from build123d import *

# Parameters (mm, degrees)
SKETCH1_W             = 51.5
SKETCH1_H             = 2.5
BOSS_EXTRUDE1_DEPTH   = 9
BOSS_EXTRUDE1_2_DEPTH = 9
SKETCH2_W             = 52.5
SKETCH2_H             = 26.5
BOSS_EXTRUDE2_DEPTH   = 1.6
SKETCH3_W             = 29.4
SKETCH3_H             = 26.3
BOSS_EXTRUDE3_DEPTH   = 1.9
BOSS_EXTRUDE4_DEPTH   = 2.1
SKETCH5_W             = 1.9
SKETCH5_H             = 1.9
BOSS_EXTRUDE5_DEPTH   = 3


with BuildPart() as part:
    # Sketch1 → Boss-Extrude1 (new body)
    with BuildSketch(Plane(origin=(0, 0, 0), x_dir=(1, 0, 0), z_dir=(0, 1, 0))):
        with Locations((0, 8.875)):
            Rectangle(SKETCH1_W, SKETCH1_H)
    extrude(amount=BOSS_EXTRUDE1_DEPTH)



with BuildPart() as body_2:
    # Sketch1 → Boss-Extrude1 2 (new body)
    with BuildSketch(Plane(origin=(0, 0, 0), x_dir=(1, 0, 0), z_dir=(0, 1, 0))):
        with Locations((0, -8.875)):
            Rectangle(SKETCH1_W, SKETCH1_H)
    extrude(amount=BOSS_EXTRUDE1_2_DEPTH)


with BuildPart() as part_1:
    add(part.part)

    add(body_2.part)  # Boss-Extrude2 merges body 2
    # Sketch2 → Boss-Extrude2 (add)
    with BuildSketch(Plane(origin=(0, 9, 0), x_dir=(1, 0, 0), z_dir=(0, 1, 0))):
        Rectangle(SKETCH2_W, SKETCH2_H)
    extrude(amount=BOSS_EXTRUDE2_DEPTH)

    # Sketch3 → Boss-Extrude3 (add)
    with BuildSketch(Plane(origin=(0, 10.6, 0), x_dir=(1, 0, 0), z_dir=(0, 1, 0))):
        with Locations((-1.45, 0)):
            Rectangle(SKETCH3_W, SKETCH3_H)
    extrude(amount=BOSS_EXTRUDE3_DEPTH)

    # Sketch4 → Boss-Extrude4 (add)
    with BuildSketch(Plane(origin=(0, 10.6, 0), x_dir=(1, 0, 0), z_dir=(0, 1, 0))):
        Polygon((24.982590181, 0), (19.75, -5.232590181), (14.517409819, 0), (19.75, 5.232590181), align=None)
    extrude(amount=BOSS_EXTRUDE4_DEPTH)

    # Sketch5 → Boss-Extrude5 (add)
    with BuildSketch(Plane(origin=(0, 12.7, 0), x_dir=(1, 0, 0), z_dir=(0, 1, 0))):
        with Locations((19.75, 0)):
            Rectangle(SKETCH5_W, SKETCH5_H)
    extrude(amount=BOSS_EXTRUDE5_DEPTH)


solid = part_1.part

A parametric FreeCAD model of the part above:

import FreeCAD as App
import Part
import Sketcher

doc = App.newDocument("Part")
body = doc.addObject("PartDesign::Body", "Body")

# Sketch on XZ plane
sketch1 = body.newObject("Sketcher::SketchObject", "Sketch")
sketch1.AttachmentSupport = (doc.getObject("XZ_Plane"), [""])
sketch1.MapMode = "FlatFace"
sketch1.addGeometry(Part.LineSegment(App.Vector(-25.8, -10.1, 0), App.Vector(-25.8, -7.6, 0)), False)
sketch1.addGeometry(Part.LineSegment(App.Vector(-25.8, -7.6, 0), App.Vector(25.8, -7.6, 0)), False)
sketch1.addGeometry(Part.LineSegment(App.Vector(25.8, -7.6, 0), App.Vector(25.8, -10.1, 0)), False)
sketch1.addGeometry(Part.LineSegment(App.Vector(25.8, -10.1, 0), App.Vector(-25.8, -10.1, 0)), False)
sketch1.addConstraint(Sketcher.Constraint("Coincident", 0, 2, 1, 1))
sketch1.addConstraint(Sketcher.Constraint("Coincident", 1, 2, 2, 1))
sketch1.addConstraint(Sketcher.Constraint("Coincident", 2, 2, 3, 1))
sketch1.addConstraint(Sketcher.Constraint("Coincident", 3, 2, 0, 1))
sketch1.addConstraint(Sketcher.Constraint("Vertical", 0))
sketch1.addConstraint(Sketcher.Constraint("Horizontal", 1))
sketch1.addConstraint(Sketcher.Constraint("Vertical", 2))
sketch1.addConstraint(Sketcher.Constraint("Horizontal", 3))
sketch1.addConstraint(Sketcher.Constraint("DistanceX", 1, 1, 1, 2, 51.5))
sketch1.addConstraint(Sketcher.Constraint("DistanceY", 0, 1, 0, 2, 2.5))
sketch1.addConstraint(Sketcher.Constraint("DistanceX", 0, 2, -1, 1, 25.75))
sketch1.addConstraint(Sketcher.Constraint("DistanceY", 0, 2, -1, 1, 7.625))
pad1 = body.newObject("PartDesign::Pad", "Pad")
pad1.Profile = sketch1
pad1.Length = 9
pad1.Reversed = True
body2 = doc.addObject("PartDesign::Body", "Body001")

# Sketch on XZ plane
sketch2 = body2.newObject("Sketcher::SketchObject", "Sketch001")
sketch2.AttachmentSupport = (doc.getObject("XZ_Plane001"), [""])
sketch2.MapMode = "FlatFace"
sketch2.addGeometry(Part.LineSegment(App.Vector(-25.8, 7.6, 0), App.Vector(-25.8, 10.1, 0)), False)
sketch2.addGeometry(Part.LineSegment(App.Vector(-25.8, 10.1, 0), App.Vector(25.8, 10.1, 0)), False)
sketch2.addGeometry(Part.LineSegment(App.Vector(25.8, 10.1, 0), App.Vector(25.8, 7.6, 0)), False)
sketch2.addGeometry(Part.LineSegment(App.Vector(25.8, 7.6, 0), App.Vector(-25.8, 7.6, 0)), False)
sketch2.addConstraint(Sketcher.Constraint("Coincident", 0, 2, 1, 1))
sketch2.addConstraint(Sketcher.Constraint("Coincident", 1, 2, 2, 1))
sketch2.addConstraint(Sketcher.Constraint("Coincident", 2, 2, 3, 1))
sketch2.addConstraint(Sketcher.Constraint("Coincident", 3, 2, 0, 1))
sketch2.addConstraint(Sketcher.Constraint("Vertical", 0))
sketch2.addConstraint(Sketcher.Constraint("Horizontal", 1))
sketch2.addConstraint(Sketcher.Constraint("Vertical", 2))
sketch2.addConstraint(Sketcher.Constraint("Horizontal", 3))
sketch2.addConstraint(Sketcher.Constraint("DistanceX", 1, 1, 1, 2, 51.5))
sketch2.addConstraint(Sketcher.Constraint("DistanceY", 0, 1, 0, 2, 2.5))
sketch2.addConstraint(Sketcher.Constraint("DistanceX", 0, 2, -1, 1, 25.75))
sketch2.addConstraint(Sketcher.Constraint("DistanceY", -1, 1, 0, 2, 10.125))
pad2 = body2.newObject("PartDesign::Pad", "Pad001")
pad2.Profile = sketch2
pad2.Length = 9
pad2.Reversed = True
body.AllowCompound = True
doc.recompute()

boolean = body.newObject("PartDesign::Boolean", "Boolean")
boolean.Type = "Fuse"
boolean.addObjects([body2])

# Sketch on XZ plane
sketch3 = body.newObject("Sketcher::SketchObject", "Sketch002")
sketch3.AttachmentSupport = (doc.getObject("XZ_Plane"), [""])
sketch3.MapMode = "FlatFace"
sketch3.AttachmentOffset = App.Placement(App.Vector(0, 0, -9), App.Rotation())
sketch3.addGeometry(Part.LineSegment(App.Vector(-26, -13, 0), App.Vector(-26, 13, 0)), False)
sketch3.addGeometry(Part.LineSegment(App.Vector(-26, 13, 0), App.Vector(26, 13, 0)), False)
sketch3.addGeometry(Part.LineSegment(App.Vector(26, 13, 0), App.Vector(26, -13, 0)), False)
sketch3.addGeometry(Part.LineSegment(App.Vector(26, -13, 0), App.Vector(-26, -13, 0)), False)
sketch3.addConstraint(Sketcher.Constraint("Coincident", 0, 2, 1, 1))
sketch3.addConstraint(Sketcher.Constraint("Coincident", 1, 2, 2, 1))
sketch3.addConstraint(Sketcher.Constraint("Coincident", 2, 2, 3, 1))
sketch3.addConstraint(Sketcher.Constraint("Coincident", 3, 2, 0, 1))
sketch3.addConstraint(Sketcher.Constraint("Vertical", 0))
sketch3.addConstraint(Sketcher.Constraint("Horizontal", 1))
sketch3.addConstraint(Sketcher.Constraint("Vertical", 2))
sketch3.addConstraint(Sketcher.Constraint("Horizontal", 3))
sketch3.addConstraint(Sketcher.Constraint("Symmetric", 0, 2, 2, 2, -1, 1))
sketch3.addConstraint(Sketcher.Constraint("DistanceX", 1, 1, 1, 2, 52.5))
sketch3.addConstraint(Sketcher.Constraint("DistanceY", 0, 1, 0, 2, 26.5))
pad3 = body.newObject("PartDesign::Pad", "Pad002")
pad3.Profile = sketch3
pad3.Length = 1.6
pad3.Reversed = True

# Sketch on XZ plane
sketch4 = body.newObject("Sketcher::SketchObject", "Sketch003")
sketch4.AttachmentSupport = (doc.getObject("XZ_Plane"), [""])
sketch4.MapMode = "FlatFace"
sketch4.AttachmentOffset = App.Placement(App.Vector(0, 0, -10.6), App.Rotation())
sketch4.addGeometry(Part.LineSegment(App.Vector(-16, -13, 0), App.Vector(-16, 13, 0)), False)
sketch4.addGeometry(Part.LineSegment(App.Vector(-16, 13, 0), App.Vector(13, 13, 0)), False)
sketch4.addGeometry(Part.LineSegment(App.Vector(13, 13, 0), App.Vector(13, -13, 0)), False)
sketch4.addGeometry(Part.LineSegment(App.Vector(13, -13, 0), App.Vector(-16, -13, 0)), False)
sketch4.addConstraint(Sketcher.Constraint("Coincident", 0, 2, 1, 1))
sketch4.addConstraint(Sketcher.Constraint("Coincident", 1, 2, 2, 1))
sketch4.addConstraint(Sketcher.Constraint("Coincident", 2, 2, 3, 1))
sketch4.addConstraint(Sketcher.Constraint("Coincident", 3, 2, 0, 1))
sketch4.addConstraint(Sketcher.Constraint("Vertical", 0))
sketch4.addConstraint(Sketcher.Constraint("Horizontal", 1))
sketch4.addConstraint(Sketcher.Constraint("Vertical", 2))
sketch4.addConstraint(Sketcher.Constraint("Horizontal", 3))
sketch4.addConstraint(Sketcher.Constraint("DistanceX", 1, 1, 1, 2, 29.4))
sketch4.addConstraint(Sketcher.Constraint("DistanceY", 0, 1, 0, 2, 26.3))
sketch4.addConstraint(Sketcher.Constraint("DistanceX", 0, 2, -1, 1, 16.15))
sketch4.addConstraint(Sketcher.Constraint("DistanceY", -1, 1, 0, 2, 13.15))
pad4 = body.newObject("PartDesign::Pad", "Pad003")
pad4.Profile = sketch4
pad4.Length = 1.9
pad4.Reversed = True

# Sketch on XZ plane
sketch5 = body.newObject("Sketcher::SketchObject", "Sketch004")
sketch5.AttachmentSupport = (doc.getObject("XZ_Plane"), [""])
sketch5.MapMode = "FlatFace"
sketch5.AttachmentOffset = App.Placement(App.Vector(0, 0, -10.6), App.Rotation())
sketch5.addGeometry(Part.LineSegment(App.Vector(20, 5, 0), App.Vector(25, 0, 0)), False)
sketch5.addGeometry(Part.LineSegment(App.Vector(25, 0, 0), App.Vector(20, -5, 0)), False)
sketch5.addGeometry(Part.LineSegment(App.Vector(20, -5, 0), App.Vector(15, 0, 0)), False)
sketch5.addGeometry(Part.LineSegment(App.Vector(15, 0, 0), App.Vector(20, 5, 0)), False)
sketch5.addConstraint(Sketcher.Constraint("Coincident", 0, 2, 1, 1))
sketch5.addConstraint(Sketcher.Constraint("Coincident", 1, 2, 2, 1))
sketch5.addConstraint(Sketcher.Constraint("Coincident", 2, 2, 3, 1))
sketch5.addConstraint(Sketcher.Constraint("Coincident", 3, 2, 0, 1))
sketch5.addConstraint(Sketcher.Constraint("Symmetric", 1, 2, 3, 2, -1))
sketch5.addConstraint(Sketcher.Constraint("PointOnObject", 0, 2, -1))
sketch5.addConstraint(Sketcher.Constraint("PointOnObject", 2, 2, -1))
sketch5.addConstraint(Sketcher.Constraint("Perpendicular", 0, 1))
sketch5.addConstraint(Sketcher.Constraint("Perpendicular", 1, 2))
sketch5.addConstraint(Sketcher.Constraint("Distance", 0, 7.4))
sketch5.addConstraint(Sketcher.Constraint("DistanceX", -1, 1, 1, 2, 19.75))
pad5 = body.newObject("PartDesign::Pad", "Pad004")
pad5.Profile = sketch5
pad5.Length = 2.1
pad5.Reversed = True

# Sketch on XZ plane
sketch6 = body.newObject("Sketcher::SketchObject", "Sketch005")
sketch6.AttachmentSupport = (doc.getObject("XZ_Plane"), [""])
sketch6.MapMode = "FlatFace"
sketch6.AttachmentOffset = App.Placement(App.Vector(0, 0, -12.7), App.Rotation())
sketch6.addGeometry(Part.LineSegment(App.Vector(18.8, -0.9, 0), App.Vector(18.8, 0.9, 0)), False)
sketch6.addGeometry(Part.LineSegment(App.Vector(18.8, 0.9, 0), App.Vector(20.7, 0.9, 0)), False)
sketch6.addGeometry(Part.LineSegment(App.Vector(20.7, 0.9, 0), App.Vector(20.7, -0.9, 0)), False)
sketch6.addGeometry(Part.LineSegment(App.Vector(20.7, -0.9, 0), App.Vector(18.8, -0.9, 0)), False)
sketch6.addConstraint(Sketcher.Constraint("Coincident", 0, 2, 1, 1))
sketch6.addConstraint(Sketcher.Constraint("Coincident", 1, 2, 2, 1))
sketch6.addConstraint(Sketcher.Constraint("Coincident", 2, 2, 3, 1))
sketch6.addConstraint(Sketcher.Constraint("Coincident", 3, 2, 0, 1))
sketch6.addConstraint(Sketcher.Constraint("Vertical", 0))
sketch6.addConstraint(Sketcher.Constraint("Horizontal", 1))
sketch6.addConstraint(Sketcher.Constraint("Vertical", 2))
sketch6.addConstraint(Sketcher.Constraint("Horizontal", 3))
sketch6.addConstraint(Sketcher.Constraint("Equal", 3, 0))
sketch6.addConstraint(Sketcher.Constraint("DistanceX", 1, 1, 1, 2, 1.9))
sketch6.addConstraint(Sketcher.Constraint("DistanceX", -1, 1, 0, 2, 18.8))
sketch6.addConstraint(Sketcher.Constraint("DistanceY", -1, 1, 0, 2, 0.95))
pad6 = body.newObject("PartDesign::Pad", "Pad005")
pad6.Profile = sketch6
pad6.Length = 3
pad6.Reversed = True

doc.recompute()
